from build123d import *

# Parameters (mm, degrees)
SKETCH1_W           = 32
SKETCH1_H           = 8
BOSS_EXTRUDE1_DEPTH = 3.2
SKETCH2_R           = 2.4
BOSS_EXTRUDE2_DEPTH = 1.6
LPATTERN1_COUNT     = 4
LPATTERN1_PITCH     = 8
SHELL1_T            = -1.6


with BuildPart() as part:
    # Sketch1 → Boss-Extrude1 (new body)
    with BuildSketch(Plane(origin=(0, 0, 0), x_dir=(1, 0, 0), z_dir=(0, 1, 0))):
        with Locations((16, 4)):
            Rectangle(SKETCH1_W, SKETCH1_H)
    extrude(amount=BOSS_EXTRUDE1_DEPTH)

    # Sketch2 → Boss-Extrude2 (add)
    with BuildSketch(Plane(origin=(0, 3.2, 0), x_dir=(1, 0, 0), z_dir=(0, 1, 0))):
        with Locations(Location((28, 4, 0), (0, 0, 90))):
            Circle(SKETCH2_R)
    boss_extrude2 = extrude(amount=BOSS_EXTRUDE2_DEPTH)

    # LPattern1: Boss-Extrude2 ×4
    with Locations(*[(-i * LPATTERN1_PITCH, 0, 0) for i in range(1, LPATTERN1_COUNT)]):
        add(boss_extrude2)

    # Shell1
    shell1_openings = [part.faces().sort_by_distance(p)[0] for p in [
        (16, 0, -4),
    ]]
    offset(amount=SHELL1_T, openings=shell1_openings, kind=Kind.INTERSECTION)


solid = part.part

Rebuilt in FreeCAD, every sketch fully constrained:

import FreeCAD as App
import Part
import Sketcher
Q = App.Units.Quantity


def faces_at(feature, points):
    """Names of the faces that lie closest to the given points."""
    faces = feature.Shape.Faces
    near = lambda p: min(range(len(faces)), key=lambda i: faces[i].distToShape(Part.Vertex(*p))[0])
    return sorted({f"Face{near(p) + 1}" for p in points})


def add_polygon(sketch, points):
    """Adds a closed chain of lines whose ends are joined by coincident constraints."""
    first, n = sketch.GeometryCount, len(points)
    for a, b in zip(points, points[1:] + points[:1]):
        sketch.addGeometry(Part.LineSegment(App.Vector(*a, 0), App.Vector(*b, 0)), False)
    for i in range(n):
        sketch.addConstraint(Sketcher.Constraint("Coincident", first + i, 2, first + (i + 1) % n, 1))

doc = App.newDocument("Part")
body = doc.addObject("PartDesign::Body", "Body")

# Sketch on XZ plane
sketch1 = doc.addObject("Sketcher::SketchObject", "Sketch")
body.addObject(sketch1)
sketch1.AttachmentSupport = (doc.XZ_Plane, [""])
sketch1.MapMode = "FlatFace"
add_polygon(sketch1, [(0, -8), (0, 0), (32, 0), (32, -8)])  # lines 0-3
sketch1.addConstraint([
    Sketcher.Constraint("Vertical", 0),
    Sketcher.Constraint("Horizontal", 1),
    Sketcher.Constraint("Vertical", 2),
    Sketcher.Constraint("Horizontal", 3),
    Sketcher.Constraint("Coincident", 0, 2, -1, 1),
    Sketcher.Constraint("DistanceX", 1, 1, 1, 2, Q("32 mm")),
    Sketcher.Constraint("DistanceY", 0, 1, 0, 2, Q("8 mm")),
])
pad1 = doc.addObject("PartDesign::Pad", "Pad")
body.addObject(pad1)
pad1.Profile = sketch1
pad1.Length = 3.2
pad1.Reversed = True

# Sketch on XZ plane
sketch2 = doc.addObject("Sketcher::SketchObject", "Sketch001")
body.addObject(sketch2)
sketch2.AttachmentSupport = (doc.XZ_Plane, [""])
sketch2.MapMode = "FlatFace"
sketch2.AttachmentOffset = App.Placement(App.Vector(0, 0, -3.2), App.Rotation())
sketch2.addGeometry(Part.Circle(App.Vector(28, -4, 0), App.Vector(0, 0, 1), 2.4), False)
sketch2.addConstraint([
    Sketcher.Constraint("Diameter", 0, Q("4.8 mm")),
    Sketcher.Constraint("DistanceX", -1, 1, 0, 3, Q("28 mm")),
    Sketcher.Constraint("DistanceY", 0, 3, -1, 1, Q("4 mm")),
])
pad2 = doc.addObject("PartDesign::Pad", "Pad001")
body.addObject(pad2)
pad2.Profile = sketch2
pad2.Length = 1.6
pad2.Reversed = True
doc.recompute()

linearpattern = doc.addObject("PartDesign::LinearPattern", "LinearPattern")
body.addObject(linearpattern)
linearpattern.Originals = [pad2]
linearpattern.Direction = (doc.X_Axis, [""])
linearpattern.Mode = "offset"
linearpattern.Offset = 8
linearpattern.Occurrences = 4
linearpattern.Reversed = True
body.Tip = linearpattern
doc.recompute()

thickness = doc.addObject("PartDesign::Thickness", "Thickness")
body.addObject(thickness)
thickness.Base = (linearpattern, faces_at(linearpattern, [(16, 0, -4)]))
thickness.Value = 1.6
thickness.Reversed = True
thickness.Join = "Intersection"

doc.recompute()
